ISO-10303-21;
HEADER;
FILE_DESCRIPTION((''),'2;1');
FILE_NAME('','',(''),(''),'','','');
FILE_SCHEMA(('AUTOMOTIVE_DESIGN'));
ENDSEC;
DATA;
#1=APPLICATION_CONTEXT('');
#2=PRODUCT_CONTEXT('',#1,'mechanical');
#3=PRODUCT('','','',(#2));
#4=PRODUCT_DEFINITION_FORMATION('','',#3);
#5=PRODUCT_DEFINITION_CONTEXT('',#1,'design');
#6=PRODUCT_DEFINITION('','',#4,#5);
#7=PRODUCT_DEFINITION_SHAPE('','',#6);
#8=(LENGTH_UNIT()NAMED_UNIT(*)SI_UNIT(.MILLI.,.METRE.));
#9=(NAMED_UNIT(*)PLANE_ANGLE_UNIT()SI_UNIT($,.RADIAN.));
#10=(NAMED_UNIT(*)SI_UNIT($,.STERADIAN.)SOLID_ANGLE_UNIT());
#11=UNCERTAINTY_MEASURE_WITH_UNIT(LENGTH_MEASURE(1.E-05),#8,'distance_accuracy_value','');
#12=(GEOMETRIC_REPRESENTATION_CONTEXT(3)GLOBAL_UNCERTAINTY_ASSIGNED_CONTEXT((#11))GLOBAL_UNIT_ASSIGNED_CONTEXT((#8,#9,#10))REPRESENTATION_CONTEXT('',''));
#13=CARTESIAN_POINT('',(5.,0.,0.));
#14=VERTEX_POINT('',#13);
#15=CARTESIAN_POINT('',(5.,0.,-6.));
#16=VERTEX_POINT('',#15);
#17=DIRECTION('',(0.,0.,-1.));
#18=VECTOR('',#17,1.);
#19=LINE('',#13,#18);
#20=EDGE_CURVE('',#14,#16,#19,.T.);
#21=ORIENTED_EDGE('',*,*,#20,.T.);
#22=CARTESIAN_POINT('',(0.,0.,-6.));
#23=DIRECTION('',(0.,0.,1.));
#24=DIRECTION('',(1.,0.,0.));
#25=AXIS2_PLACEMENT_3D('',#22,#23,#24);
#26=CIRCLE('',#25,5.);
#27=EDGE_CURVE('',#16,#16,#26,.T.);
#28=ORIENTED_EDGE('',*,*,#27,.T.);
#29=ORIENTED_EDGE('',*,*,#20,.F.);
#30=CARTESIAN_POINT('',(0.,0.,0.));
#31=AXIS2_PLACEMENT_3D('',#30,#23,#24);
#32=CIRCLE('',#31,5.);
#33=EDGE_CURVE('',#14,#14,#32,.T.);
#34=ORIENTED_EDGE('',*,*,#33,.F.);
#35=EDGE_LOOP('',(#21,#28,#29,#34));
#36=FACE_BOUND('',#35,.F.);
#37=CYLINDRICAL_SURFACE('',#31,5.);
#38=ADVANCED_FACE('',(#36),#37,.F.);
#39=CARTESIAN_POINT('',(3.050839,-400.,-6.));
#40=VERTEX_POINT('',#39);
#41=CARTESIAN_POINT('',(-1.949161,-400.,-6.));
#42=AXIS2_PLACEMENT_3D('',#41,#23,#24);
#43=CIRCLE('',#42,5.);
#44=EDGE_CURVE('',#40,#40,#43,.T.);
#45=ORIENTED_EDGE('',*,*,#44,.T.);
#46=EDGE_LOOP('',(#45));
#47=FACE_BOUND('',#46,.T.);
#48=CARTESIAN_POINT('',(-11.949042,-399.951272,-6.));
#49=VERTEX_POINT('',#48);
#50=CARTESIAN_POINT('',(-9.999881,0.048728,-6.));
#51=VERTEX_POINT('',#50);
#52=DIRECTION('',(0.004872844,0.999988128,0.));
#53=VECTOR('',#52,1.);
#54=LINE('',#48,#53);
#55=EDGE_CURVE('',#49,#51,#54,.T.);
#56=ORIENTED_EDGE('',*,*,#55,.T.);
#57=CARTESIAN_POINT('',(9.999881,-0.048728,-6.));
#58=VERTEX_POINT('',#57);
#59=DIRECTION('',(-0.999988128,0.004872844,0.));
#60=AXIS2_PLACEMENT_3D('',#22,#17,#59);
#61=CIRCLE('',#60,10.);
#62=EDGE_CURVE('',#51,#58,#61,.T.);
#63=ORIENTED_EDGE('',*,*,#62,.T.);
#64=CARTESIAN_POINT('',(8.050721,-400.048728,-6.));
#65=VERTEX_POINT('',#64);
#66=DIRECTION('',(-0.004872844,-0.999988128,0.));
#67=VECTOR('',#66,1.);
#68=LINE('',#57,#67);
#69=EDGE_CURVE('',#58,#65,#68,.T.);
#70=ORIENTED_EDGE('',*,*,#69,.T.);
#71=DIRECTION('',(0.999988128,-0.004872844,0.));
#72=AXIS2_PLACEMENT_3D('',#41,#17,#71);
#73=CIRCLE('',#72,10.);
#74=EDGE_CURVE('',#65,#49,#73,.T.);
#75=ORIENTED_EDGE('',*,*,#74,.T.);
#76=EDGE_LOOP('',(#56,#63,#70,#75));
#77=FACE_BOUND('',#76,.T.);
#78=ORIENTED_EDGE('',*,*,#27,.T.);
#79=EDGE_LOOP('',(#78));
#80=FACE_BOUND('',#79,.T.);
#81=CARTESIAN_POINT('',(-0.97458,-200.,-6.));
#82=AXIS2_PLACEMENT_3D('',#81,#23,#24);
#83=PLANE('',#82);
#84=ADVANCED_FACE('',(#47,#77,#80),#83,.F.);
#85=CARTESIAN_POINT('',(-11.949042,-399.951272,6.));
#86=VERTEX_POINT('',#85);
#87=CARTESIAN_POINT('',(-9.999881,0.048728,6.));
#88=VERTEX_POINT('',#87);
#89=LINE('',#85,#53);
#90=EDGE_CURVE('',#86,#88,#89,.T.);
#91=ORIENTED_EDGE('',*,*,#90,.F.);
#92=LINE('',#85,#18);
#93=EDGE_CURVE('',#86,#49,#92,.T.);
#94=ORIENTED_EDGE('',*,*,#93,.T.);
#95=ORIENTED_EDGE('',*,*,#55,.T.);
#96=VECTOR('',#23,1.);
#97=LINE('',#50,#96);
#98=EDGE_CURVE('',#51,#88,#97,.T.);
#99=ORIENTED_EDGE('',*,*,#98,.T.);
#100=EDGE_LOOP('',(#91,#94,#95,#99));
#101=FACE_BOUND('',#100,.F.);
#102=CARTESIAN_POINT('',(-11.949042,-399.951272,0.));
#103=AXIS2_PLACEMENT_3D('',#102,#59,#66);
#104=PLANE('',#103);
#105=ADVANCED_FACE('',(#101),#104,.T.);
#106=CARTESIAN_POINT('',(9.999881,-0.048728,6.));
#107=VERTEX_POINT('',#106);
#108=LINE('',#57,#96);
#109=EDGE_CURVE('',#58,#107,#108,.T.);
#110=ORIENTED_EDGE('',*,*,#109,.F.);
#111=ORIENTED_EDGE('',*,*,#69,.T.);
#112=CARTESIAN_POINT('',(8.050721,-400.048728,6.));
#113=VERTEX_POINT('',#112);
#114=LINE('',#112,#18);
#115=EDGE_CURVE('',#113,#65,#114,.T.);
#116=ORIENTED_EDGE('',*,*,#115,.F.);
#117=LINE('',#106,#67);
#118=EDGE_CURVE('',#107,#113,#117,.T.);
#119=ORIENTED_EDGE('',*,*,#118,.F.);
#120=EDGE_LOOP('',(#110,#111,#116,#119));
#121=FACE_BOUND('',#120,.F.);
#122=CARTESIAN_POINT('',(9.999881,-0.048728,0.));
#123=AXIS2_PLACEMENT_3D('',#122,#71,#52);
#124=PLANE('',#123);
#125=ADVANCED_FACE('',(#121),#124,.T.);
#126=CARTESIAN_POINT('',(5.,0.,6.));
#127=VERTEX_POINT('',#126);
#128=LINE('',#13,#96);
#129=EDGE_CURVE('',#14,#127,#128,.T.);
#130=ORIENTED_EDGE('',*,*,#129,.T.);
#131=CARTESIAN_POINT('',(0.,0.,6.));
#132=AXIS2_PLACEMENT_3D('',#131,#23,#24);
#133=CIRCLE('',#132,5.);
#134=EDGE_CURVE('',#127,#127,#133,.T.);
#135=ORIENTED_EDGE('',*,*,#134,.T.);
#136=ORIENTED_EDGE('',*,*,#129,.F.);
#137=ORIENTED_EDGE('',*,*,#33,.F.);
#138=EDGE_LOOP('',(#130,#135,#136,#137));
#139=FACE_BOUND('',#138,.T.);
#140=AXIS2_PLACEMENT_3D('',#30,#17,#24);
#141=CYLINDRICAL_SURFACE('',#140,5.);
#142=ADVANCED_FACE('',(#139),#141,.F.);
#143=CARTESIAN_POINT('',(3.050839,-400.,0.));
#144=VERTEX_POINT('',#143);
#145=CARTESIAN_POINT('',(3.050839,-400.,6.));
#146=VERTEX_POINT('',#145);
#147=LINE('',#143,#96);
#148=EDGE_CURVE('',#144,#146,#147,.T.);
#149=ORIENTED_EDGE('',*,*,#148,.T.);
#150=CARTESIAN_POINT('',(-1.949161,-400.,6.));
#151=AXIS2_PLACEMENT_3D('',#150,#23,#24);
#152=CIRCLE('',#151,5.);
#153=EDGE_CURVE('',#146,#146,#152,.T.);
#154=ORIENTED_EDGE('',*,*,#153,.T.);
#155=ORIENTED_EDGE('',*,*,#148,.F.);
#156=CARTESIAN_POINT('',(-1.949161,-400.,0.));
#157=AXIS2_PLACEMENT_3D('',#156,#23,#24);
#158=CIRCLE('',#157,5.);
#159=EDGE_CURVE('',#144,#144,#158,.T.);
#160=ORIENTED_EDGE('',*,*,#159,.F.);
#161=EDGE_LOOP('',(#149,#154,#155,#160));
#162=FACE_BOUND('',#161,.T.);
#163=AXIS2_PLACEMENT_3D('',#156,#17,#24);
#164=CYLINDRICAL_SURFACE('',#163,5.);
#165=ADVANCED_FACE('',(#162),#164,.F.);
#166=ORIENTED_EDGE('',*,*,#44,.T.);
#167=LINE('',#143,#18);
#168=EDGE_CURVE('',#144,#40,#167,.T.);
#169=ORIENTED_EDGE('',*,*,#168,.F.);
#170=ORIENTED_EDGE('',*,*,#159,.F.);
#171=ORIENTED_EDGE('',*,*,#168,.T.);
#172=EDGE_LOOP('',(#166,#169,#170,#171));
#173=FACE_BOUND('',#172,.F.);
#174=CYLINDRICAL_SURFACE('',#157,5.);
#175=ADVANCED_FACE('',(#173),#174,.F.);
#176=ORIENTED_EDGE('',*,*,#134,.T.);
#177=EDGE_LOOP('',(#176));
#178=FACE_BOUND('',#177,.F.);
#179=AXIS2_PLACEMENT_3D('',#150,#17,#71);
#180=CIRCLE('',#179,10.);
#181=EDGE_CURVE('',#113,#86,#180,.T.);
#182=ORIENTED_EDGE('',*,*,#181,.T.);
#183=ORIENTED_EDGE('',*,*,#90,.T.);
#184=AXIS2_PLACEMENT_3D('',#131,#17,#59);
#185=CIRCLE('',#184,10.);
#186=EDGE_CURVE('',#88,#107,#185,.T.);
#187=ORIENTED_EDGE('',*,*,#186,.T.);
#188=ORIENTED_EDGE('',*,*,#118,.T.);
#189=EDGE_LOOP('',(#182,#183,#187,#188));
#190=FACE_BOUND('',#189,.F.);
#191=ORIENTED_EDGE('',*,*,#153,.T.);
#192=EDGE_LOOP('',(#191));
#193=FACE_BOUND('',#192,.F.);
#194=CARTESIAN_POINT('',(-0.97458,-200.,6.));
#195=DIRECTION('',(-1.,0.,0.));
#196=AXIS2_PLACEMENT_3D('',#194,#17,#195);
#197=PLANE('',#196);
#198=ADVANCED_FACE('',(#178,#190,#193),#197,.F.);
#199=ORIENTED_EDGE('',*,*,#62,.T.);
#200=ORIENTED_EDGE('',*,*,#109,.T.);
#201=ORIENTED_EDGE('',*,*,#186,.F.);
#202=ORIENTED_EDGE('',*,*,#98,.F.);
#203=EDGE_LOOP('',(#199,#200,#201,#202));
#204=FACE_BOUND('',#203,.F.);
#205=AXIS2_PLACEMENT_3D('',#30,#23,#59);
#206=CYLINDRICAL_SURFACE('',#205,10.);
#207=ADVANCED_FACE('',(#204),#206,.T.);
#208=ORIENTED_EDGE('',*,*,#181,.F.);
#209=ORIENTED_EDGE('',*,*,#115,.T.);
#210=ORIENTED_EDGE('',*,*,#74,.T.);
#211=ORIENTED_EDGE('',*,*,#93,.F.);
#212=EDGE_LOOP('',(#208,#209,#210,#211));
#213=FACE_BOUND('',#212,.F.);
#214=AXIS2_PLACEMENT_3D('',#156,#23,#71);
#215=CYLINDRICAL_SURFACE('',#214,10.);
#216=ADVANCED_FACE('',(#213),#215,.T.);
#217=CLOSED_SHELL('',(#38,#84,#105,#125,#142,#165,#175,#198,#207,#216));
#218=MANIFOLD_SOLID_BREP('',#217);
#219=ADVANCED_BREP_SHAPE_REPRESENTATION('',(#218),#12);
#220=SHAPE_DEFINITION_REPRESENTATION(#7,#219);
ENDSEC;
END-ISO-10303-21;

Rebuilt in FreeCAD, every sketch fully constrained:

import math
import FreeCAD as App
import Part
import Sketcher
from FreeCAD import Vector
Q = App.Units.Quantity

doc = App.newDocument("Part")
body = doc.addObject("PartDesign::Body", "Body")

sketch1 = body.newObject("Sketcher::SketchObject", "Sketch")
sketch1.AttachmentSupport = (doc.getObject("XY_Plane"), [""])
sketch1.MapMode = "FlatFace"
sketch1.addGeometry(Part.LineSegment(Vector(8.050721, -400.048728, 0), Vector(9.999881, -0.048728, 0)), False)
sketch1.addGeometry(Part.ArcOfCircle(Part.Circle(Vector(0, 0, 0), Vector(0, 0, 1), 10), math.radians(-0.279194), math.radians(179.720806)), False)
sketch1.addGeometry(Part.LineSegment(Vector(-9.999881, 0.048728, 0), Vector(-11.949042, -399.951272, 0)), False)
sketch1.addGeometry(Part.ArcOfCircle(Part.Circle(Vector(-1.949161, -400, 0), Vector(0, 0, 1), 10), math.radians(179.720806), math.radians(359.720806)), False)
sketch1.addGeometry(Part.Circle(Vector(-1.949161, -400, 0), Vector(0, 0, 1), 5), False)
sketch1.addGeometry(Part.Circle(Vector(0, 0, 0), Vector(0, 0, 1), 5), False)
sketch1.addConstraint(Sketcher.Constraint("Tangent", 0, 2, 1, 1))
sketch1.addConstraint(Sketcher.Constraint("Tangent", 1, 2, 2, 1))
sketch1.addConstraint(Sketcher.Constraint("Tangent", 2, 2, 3, 1))
sketch1.addConstraint(Sketcher.Constraint("Tangent", 3, 2, 0, 1))
sketch1.addConstraint(Sketcher.Constraint("Coincident", 1, 3, -1, 1))
sketch1.addConstraint(Sketcher.Constraint("Coincident", 5, 3, -1, 1))
sketch1.addConstraint(Sketcher.Constraint("Coincident", 4, 3, 3, 3))
sketch1.addConstraint(Sketcher.Constraint("Equal", 1, 3))
sketch1.addConstraint(Sketcher.Constraint("Equal", 4, 5))
sketch1.addConstraint(Sketcher.Constraint("Diameter", 4, Q("10 mm")))
sketch1.addConstraint(Sketcher.Constraint("Radius", 1, Q("10 mm")))
sketch1.addConstraint(Sketcher.Constraint("DistanceY", 3, 3, -1, 1, Q("400 mm")))
sketch1.addConstraint(Sketcher.Constraint("DistanceX", 3, 3, -1, 1, Q("1.949161 mm")))
pad1 = body.newObject("PartDesign::Pad", "Pad")
pad1.Profile = sketch1
pad1.Length = 6
doc.recompute()

mirrored = body.newObject("PartDesign::Mirrored", "Mirrored")
mirrored.Originals = [pad1]
mirrored.MirrorPlane = (doc.getObject("XY_Plane"), [""])
body.Tip = mirrored

doc.recompute()
